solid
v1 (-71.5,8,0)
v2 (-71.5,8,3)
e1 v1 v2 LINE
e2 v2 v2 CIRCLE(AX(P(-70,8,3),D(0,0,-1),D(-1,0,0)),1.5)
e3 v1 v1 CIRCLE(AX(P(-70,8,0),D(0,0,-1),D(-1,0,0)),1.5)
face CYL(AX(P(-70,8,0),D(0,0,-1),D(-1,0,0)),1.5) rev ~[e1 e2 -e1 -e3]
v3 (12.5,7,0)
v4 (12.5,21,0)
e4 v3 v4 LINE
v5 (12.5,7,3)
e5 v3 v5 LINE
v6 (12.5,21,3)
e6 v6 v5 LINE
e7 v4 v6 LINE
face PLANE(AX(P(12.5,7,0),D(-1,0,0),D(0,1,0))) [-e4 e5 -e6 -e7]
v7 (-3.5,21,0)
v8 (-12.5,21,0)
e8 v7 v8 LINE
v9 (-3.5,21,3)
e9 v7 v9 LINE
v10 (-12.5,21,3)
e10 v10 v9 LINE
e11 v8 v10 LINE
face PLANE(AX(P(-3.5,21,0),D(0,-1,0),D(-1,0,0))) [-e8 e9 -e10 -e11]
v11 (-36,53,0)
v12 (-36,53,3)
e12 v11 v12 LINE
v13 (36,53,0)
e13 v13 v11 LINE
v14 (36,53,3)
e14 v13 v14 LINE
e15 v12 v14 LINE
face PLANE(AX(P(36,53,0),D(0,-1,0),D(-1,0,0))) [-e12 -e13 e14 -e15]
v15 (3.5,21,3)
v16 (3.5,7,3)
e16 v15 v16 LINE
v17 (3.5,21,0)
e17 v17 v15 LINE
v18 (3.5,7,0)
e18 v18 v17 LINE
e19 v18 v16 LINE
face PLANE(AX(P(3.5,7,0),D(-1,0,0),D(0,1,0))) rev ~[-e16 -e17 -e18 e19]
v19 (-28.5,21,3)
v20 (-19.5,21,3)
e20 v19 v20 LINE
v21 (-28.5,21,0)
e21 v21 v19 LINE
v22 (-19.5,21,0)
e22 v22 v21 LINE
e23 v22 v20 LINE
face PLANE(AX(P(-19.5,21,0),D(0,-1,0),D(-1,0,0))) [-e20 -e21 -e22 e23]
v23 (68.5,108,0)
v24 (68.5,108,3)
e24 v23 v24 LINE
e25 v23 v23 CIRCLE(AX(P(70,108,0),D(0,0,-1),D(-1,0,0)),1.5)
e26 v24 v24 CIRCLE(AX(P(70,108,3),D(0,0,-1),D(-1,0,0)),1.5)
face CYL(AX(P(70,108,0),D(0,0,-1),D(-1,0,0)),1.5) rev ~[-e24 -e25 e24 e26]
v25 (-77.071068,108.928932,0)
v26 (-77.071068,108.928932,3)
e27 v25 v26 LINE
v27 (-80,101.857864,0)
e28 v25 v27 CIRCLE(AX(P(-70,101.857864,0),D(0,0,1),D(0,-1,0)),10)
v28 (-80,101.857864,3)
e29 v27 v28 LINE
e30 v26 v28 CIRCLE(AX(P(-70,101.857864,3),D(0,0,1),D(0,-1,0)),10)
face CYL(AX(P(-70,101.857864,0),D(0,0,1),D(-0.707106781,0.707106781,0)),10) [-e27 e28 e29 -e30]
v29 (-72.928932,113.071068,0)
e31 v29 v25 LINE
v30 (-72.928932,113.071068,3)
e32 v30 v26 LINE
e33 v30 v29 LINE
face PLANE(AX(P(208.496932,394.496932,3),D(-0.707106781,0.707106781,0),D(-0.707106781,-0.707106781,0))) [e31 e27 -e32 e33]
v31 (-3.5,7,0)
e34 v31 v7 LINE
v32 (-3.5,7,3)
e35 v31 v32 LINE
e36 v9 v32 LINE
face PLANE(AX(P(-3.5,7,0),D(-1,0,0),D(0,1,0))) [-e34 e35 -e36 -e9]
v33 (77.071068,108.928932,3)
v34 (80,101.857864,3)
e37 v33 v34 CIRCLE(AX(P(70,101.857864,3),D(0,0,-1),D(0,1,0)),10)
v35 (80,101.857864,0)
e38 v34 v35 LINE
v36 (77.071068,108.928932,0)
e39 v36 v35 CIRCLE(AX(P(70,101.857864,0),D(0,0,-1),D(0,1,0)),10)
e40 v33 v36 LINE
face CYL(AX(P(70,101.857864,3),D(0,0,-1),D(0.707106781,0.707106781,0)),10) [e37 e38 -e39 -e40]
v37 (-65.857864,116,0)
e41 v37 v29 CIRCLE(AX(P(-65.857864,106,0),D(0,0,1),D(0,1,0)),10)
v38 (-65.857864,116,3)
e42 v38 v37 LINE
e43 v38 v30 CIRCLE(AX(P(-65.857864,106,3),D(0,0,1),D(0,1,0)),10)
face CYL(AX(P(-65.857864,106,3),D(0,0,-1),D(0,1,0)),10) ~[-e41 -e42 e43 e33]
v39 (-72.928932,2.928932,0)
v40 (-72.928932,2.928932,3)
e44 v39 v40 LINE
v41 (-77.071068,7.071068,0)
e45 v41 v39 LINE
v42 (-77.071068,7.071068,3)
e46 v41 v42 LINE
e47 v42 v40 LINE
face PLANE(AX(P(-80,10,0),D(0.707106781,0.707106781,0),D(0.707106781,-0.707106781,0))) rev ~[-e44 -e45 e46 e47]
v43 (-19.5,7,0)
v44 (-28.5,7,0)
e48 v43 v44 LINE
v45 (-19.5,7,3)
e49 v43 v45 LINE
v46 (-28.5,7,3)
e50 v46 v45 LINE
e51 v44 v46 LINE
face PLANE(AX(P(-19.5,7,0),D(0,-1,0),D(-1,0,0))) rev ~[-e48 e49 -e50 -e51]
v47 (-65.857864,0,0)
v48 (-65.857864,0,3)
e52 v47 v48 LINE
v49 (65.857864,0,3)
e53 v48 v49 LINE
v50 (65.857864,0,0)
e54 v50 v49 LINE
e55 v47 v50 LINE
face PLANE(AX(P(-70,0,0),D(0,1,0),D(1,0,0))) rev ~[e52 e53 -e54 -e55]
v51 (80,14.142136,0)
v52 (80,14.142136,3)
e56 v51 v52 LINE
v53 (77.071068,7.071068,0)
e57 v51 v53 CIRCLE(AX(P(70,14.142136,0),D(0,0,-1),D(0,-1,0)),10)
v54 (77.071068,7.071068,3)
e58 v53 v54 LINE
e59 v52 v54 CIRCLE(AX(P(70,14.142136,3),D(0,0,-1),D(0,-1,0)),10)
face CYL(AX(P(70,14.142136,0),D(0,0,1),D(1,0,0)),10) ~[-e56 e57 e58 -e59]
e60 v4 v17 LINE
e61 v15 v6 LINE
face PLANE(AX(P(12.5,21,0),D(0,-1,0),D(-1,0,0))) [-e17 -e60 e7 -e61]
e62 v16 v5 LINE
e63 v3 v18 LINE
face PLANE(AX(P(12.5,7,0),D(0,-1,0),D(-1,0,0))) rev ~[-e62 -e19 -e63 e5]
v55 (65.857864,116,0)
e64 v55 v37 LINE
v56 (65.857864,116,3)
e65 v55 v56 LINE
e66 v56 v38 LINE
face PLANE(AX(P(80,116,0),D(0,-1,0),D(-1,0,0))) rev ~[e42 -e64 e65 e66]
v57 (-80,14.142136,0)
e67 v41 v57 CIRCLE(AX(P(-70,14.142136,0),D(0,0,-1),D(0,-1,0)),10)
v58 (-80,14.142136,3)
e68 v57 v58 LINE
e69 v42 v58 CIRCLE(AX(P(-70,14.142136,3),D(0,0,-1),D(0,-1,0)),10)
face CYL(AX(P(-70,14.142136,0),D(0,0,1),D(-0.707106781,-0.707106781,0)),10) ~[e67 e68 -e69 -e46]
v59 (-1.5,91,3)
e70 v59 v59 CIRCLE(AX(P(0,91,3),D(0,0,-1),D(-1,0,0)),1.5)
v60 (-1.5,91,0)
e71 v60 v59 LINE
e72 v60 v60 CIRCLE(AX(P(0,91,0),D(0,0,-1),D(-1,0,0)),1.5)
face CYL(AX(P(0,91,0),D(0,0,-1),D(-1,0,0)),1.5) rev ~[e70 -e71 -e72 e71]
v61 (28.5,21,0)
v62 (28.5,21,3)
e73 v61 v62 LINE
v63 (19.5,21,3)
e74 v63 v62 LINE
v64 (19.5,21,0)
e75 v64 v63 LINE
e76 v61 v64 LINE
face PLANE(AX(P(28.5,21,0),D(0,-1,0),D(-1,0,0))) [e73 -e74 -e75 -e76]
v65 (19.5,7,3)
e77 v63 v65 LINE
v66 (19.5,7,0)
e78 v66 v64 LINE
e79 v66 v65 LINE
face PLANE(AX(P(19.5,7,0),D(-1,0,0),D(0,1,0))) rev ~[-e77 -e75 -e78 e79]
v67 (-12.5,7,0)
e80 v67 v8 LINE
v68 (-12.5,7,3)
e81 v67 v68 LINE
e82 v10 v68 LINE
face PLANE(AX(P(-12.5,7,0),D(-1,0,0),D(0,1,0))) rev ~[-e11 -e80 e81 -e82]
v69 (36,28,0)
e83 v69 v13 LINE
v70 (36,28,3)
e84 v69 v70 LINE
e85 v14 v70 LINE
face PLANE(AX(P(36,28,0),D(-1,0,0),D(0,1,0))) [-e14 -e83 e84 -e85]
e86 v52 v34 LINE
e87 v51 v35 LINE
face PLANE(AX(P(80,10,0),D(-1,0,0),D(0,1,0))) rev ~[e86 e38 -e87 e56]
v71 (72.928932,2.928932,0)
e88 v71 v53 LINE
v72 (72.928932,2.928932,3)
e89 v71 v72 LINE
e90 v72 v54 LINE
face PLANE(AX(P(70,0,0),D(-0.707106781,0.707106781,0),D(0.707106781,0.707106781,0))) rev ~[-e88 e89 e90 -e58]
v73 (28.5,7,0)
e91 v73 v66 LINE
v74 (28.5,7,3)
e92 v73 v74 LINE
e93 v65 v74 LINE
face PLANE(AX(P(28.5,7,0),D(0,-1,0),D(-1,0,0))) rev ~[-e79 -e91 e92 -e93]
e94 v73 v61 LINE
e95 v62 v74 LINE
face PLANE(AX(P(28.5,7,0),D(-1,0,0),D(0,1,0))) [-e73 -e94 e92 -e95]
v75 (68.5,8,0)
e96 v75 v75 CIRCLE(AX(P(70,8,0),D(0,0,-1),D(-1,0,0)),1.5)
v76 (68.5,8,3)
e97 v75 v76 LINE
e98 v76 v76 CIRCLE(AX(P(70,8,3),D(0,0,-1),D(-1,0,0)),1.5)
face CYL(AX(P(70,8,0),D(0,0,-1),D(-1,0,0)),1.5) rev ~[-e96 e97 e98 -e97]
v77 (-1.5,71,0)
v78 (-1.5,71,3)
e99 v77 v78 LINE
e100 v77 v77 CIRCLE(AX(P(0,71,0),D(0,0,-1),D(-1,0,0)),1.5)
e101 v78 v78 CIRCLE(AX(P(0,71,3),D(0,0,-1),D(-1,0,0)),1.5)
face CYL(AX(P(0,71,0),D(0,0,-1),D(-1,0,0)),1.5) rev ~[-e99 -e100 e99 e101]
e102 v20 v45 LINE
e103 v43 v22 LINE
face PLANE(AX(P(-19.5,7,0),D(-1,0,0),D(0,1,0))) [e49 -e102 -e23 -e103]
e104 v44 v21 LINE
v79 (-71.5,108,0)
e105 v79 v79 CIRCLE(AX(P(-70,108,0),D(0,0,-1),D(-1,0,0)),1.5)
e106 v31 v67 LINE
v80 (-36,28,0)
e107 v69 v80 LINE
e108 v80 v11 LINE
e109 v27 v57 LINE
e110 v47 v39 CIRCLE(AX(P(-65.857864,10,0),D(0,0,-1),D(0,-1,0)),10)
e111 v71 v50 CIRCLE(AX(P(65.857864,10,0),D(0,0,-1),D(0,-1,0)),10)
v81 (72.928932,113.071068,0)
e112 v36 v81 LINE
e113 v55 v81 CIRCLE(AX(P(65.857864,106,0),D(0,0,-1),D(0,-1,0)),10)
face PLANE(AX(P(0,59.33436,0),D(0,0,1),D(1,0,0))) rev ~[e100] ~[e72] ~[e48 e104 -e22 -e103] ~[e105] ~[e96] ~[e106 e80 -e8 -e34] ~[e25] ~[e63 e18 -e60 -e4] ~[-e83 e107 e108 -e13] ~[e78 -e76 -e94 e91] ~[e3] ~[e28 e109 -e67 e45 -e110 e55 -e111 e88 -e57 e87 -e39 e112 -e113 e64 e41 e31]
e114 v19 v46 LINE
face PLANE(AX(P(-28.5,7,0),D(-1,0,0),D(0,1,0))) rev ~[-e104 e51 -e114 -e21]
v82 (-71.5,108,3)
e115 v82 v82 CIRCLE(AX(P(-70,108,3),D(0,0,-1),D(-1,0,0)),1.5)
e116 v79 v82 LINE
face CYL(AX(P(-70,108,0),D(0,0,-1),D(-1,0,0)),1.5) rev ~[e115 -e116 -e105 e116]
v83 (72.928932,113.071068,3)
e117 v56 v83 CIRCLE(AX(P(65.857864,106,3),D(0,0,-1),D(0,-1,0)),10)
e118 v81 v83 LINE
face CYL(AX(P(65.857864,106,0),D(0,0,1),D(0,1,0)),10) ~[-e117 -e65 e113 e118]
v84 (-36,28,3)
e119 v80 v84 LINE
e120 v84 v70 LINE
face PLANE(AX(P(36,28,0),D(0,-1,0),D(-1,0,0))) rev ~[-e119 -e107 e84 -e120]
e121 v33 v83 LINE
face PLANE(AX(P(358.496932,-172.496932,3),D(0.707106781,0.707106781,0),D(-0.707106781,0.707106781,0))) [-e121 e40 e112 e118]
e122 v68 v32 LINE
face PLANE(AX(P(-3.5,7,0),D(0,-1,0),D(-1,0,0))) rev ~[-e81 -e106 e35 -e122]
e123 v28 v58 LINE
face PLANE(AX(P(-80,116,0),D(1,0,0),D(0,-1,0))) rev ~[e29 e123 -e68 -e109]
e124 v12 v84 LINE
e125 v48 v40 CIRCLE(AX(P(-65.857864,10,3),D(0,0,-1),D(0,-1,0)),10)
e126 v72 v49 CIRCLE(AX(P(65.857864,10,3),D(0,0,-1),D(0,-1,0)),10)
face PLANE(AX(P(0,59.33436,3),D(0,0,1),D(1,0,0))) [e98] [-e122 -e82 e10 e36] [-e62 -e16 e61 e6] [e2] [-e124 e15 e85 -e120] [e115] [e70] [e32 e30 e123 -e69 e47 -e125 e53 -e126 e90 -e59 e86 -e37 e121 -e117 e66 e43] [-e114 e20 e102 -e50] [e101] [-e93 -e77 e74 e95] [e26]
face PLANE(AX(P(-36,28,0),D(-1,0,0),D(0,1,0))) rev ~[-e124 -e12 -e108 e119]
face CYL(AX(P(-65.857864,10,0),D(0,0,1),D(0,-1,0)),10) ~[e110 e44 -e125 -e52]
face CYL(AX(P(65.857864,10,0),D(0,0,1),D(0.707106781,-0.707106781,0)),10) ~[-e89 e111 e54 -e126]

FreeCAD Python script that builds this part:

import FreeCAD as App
import Part
import Sketcher
Q = App.Units.Quantity


def edges_at(feature, points):
    """Names of the edges that pass closest to the given points."""
    edges = feature.Shape.Edges
    near = lambda p: min(range(len(edges)), key=lambda i: edges[i].distToShape(Part.Vertex(*p))[0])
    return sorted({f"Edge{near(p) + 1}" for p in points})


def add_polygon(sketch, points):
    """Adds a closed chain of lines whose ends are joined by coincident constraints."""
    first, n = sketch.GeometryCount, len(points)
    for a, b in zip(points, points[1:] + points[:1]):
        sketch.addGeometry(Part.LineSegment(App.Vector(*a, 0), App.Vector(*b, 0)), False)
    for i in range(n):
        sketch.addConstraint(Sketcher.Constraint("Coincident", first + i, 2, first + (i + 1) % n, 1))

doc = App.newDocument("Part")
params = doc.addObject("Spreadsheet::Sheet", "Params")
for row, (alias, value) in enumerate([
    ("sketch1_width", "160 mm"),
    ("sketch1_width2", "140 mm"),
    ("sketch1_height", "106 mm"),
    ("pad1_length", "3 mm"),
    ("sketch4_diameter", "3 mm"),
    ("sketch4_width", "72 mm"),
    ("sketch4_width2", "9 mm"),
    ("sketch4_height", "25 mm"),
    ("sketch4_height2", "14 mm"),
    ("fillet_radius", "10 mm"),
], start=1):
    params.set(f"A{row}", alias)
    params.set(f"B{row}", "=" + value)
    params.setAlias(f"B{row}", alias)

body = doc.addObject("PartDesign::Body", "Body")

sketch1 = body.newObject("Sketcher::SketchObject", "Sketch")
sketch1.AttachmentSupport = (doc.getObject("XY_Plane"), [""])
sketch1.MapMode = "FlatFace"
add_polygon(sketch1, [(80, 116), (-80, 116), (-80, 10), (-70, 0), (70, 0), (80, 10)])
sketch1.addConstraint([
    Sketcher.Constraint("Horizontal", 0),
    Sketcher.Constraint("Vertical", 1),
    Sketcher.Constraint("Horizontal", 3),
    Sketcher.Constraint("Vertical", 5),
    Sketcher.Constraint("Symmetric", 2, 2, 3, 2, -1, 1),
    Sketcher.Constraint("Symmetric", 1, 2, 4, 2, -2),
    Sketcher.Constraint("Perpendicular", 2, 4),
    Sketcher.Constraint("DistanceX", 0, 2, 0, 1, Q("160 mm")),
    Sketcher.Constraint("DistanceX", 3, 1, 3, 2, Q("140 mm")),
    Sketcher.Constraint("DistanceY", 1, 2, 1, 1, Q("106 mm")),
])
sketch1.setExpression("Constraints[13]", "Params.sketch1_width")
sketch1.setExpression("Constraints[14]", "Params.sketch1_width2")
sketch1.setExpression("Constraints[15]", "Params.sketch1_height")
pad1 = body.newObject("PartDesign::Pad", "Pad")
pad1.Profile = sketch1
pad1.setExpression("Length", "Params.pad1_length")

sketch2 = body.newObject("Sketcher::SketchObject", "Sketch001")
sketch2.AttachmentSupport = (doc.getObject("XY_Plane"), [""])
sketch2.MapMode = "FlatFace"
add_polygon(sketch2, [(358.496932, -172.496932), (-208.496932, 394.496932), (348.496932, 951.490797), (915.490797, 384.496932)])
sketch2.addConstraint([
    Sketcher.Constraint("Perpendicular", 0, 1),
    Sketcher.Constraint("Perpendicular", 1, 2),
    Sketcher.Constraint("Perpendicular", 2, 3),
    Sketcher.Constraint("Angle", 0, Q("135 deg")),
    Sketcher.Constraint("DistanceY", 2, 2, 0, 2, Q("10 mm")),
    Sketcher.Constraint("DistanceX", 0, 2, 2, 2, Q("1123.98773 mm")),
    Sketcher.Constraint("DistanceX", 0, 2, -1, 1, Q("208.496932 mm")),
    Sketcher.Constraint("DistanceY", -1, 1, 0, 2, Q("394.496932 mm")),
])
pocket1 = body.newObject("PartDesign::Pocket", "Pocket")
pocket1.Profile = sketch2
pocket1.Type = "ThroughAll"
pocket1.Midplane = True

sketch3 = body.newObject("Sketcher::SketchObject", "Sketch002")
sketch3.AttachmentSupport = (doc.getObject("XY_Plane"), [""])
sketch3.MapMode = "FlatFace"
add_polygon(sketch3, [(208.496932, 394.496932), (-358.496932, -172.496932), (-915.490797, 384.496932), (-348.496932, 951.490797)])
sketch3.addConstraint([
    Sketcher.Constraint("Perpendicular", 0, 1),
    Sketcher.Constraint("Perpendicular", 1, 2),
    Sketcher.Constraint("Perpendicular", 2, 3),
    Sketcher.Constraint("Angle", 0, Q("-135 deg")),
    Sketcher.Constraint("DistanceX", 0, 2, 2, 2, Q("10 mm")),
    Sketcher.Constraint("DistanceY", 0, 2, 2, 2, Q("1123.98773 mm")),
    Sketcher.Constraint("DistanceX", 0, 2, -1, 1, Q("358.496932 mm")),
    Sketcher.Constraint("DistanceY", 0, 2, -1, 1, Q("172.496932 mm")),
])
pocket2 = body.newObject("PartDesign::Pocket", "Pocket001")
pocket2.Profile = sketch3
pocket2.Type = "ThroughAll"
pocket2.Midplane = True

sketch4 = body.newObject("Sketcher::SketchObject", "Sketch003")
sketch4.AttachmentSupport = (doc.getObject("XY_Plane"), [""])
sketch4.MapMode = "FlatFace"
sketch4.addGeometry(Part.Circle(App.Vector(0, 91, 0), App.Vector(0, 0, 1), 1.5), False)
sketch4.addGeometry(Part.Circle(App.Vector(0, 71, 0), App.Vector(0, 0, 1), 1.5), False)
sketch4.addGeometry(Part.Circle(App.Vector(70, 8, 0), App.Vector(0, 0, 1), 1.5), False)
sketch4.addGeometry(Part.Circle(App.Vector(-70, 8, 0), App.Vector(0, 0, 1), 1.5), False)
sketch4.addGeometry(Part.Circle(App.Vector(-70, 108, 0), App.Vector(0, 0, 1), 1.5), False)
sketch4.addGeometry(Part.Circle(App.Vector(70, 108, 0), App.Vector(0, 0, 1), 1.5), False)
add_polygon(sketch4, [(36, 53), (36, 28), (-36, 28), (-36, 53)])
add_polygon(sketch4, [(28.5, 21), (28.5, 7), (19.5, 7), (19.5, 21)])
add_polygon(sketch4, [(12.5, 21), (12.5, 7), (3.5, 7), (3.5, 21)])
add_polygon(sketch4, [(-3.5, 21), (-3.5, 7), (-12.5, 7), (-12.5, 21)])
add_polygon(sketch4, [(-19.5, 21), (-19.5, 7), (-28.5, 7), (-28.5, 21)])
sketch4.addConstraint([
    Sketcher.Constraint("Vertical", 6),
    Sketcher.Constraint("Horizontal", 7),
    Sketcher.Constraint("Vertical", 8),
    Sketcher.Constraint("Horizontal", 9),
    Sketcher.Constraint("Vertical", 10),
    Sketcher.Constraint("Horizontal", 11),
    Sketcher.Constraint("Vertical", 12),
    Sketcher.Constraint("Horizontal", 13),
    Sketcher.Constraint("Vertical", 14),
    Sketcher.Constraint("Horizontal", 15),
    Sketcher.Constraint("Vertical", 16),
    Sketcher.Constraint("Horizontal", 17),
    Sketcher.Constraint("Vertical", 18),
    Sketcher.Constraint("Horizontal", 19),
    Sketcher.Constraint("Vertical", 20),
    Sketcher.Constraint("Horizontal", 21),
    Sketcher.Constraint("Vertical", 22),
    Sketcher.Constraint("Horizontal", 23),
    Sketcher.Constraint("Vertical", 24),
    Sketcher.Constraint("Horizontal", 25),
    Sketcher.Constraint("Equal", 0, 1),
    Sketcher.Constraint("Equal", 1, 2),
    Sketcher.Constraint("Equal", 2, 3),
    Sketcher.Constraint("Equal", 3, 4),
    Sketcher.Constraint("Equal", 4, 5),
    Sketcher.Constraint("Symmetric", 2, 3, 3, 3, -2),
    Sketcher.Constraint("Symmetric", 4, 3, 5, 3, -2),
    Sketcher.Constraint("Symmetric", 15, 2, 18, 2, -2),
    Sketcher.Constraint("Symmetric", 17, 2, 20, 2, -2),
    Sketcher.Constraint("Symmetric", 11, 2, 22, 2, -2),
    Sketcher.Constraint("Symmetric", 13, 2, 24, 2, -2),
    Sketcher.Constraint("PointOnObject", 0, 3, -2),
    Sketcher.Constraint("PointOnObject", 1, 3, -2),
    Sketcher.Constraint("Horizontal", 11, 2, 14, 2),
    Sketcher.Constraint("Horizontal", 13, 2, 16, 2),
    Sketcher.Constraint("Vertical", 3, 3, 4, 3),
    Sketcher.Constraint("Equal", 13, 15),
    Sketcher.Constraint("Diameter", 0, Q("3 mm")),
    Sketcher.Constraint("DistanceX", 7, 2, 7, 1, Q("72 mm")),
    Sketcher.Constraint("DistanceX", 11, 2, 11, 1, Q("9 mm")),
    Sketcher.Constraint("DistanceY", 6, 2, 6, 1, Q("25 mm")),
    Sketcher.Constraint("DistanceY", 10, 2, 10, 1, Q("14 mm")),
    Sketcher.Constraint("DistanceY", -1, 1, 0, 3, Q("91 mm")),
    Sketcher.Constraint("DistanceY", -1, 1, 1, 3, Q("71 mm")),
    Sketcher.Constraint("DistanceX", -1, 1, 2, 3, Q("70 mm")),
    Sketcher.Constraint("DistanceY", -1, 1, 2, 3, Q("8 mm")),
    Sketcher.Constraint("DistanceY", -1, 1, 4, 3, Q("108 mm")),
    Sketcher.Constraint("DistanceX", -1, 1, 6, 2, Q("36 mm")),
    Sketcher.Constraint("DistanceY", -1, 1, 6, 2, Q("28 mm")),
    Sketcher.Constraint("DistanceY", -1, 1, 10, 2, Q("7 mm")),
    Sketcher.Constraint("DistanceX", 14, 2, 11, 2, Q("7 mm")),
    Sketcher.Constraint("DistanceX", 18, 2, 15, 2, Q("7 mm")),
])
sketch4.setExpression("Constraints[57]", "Params.sketch4_diameter")
sketch4.setExpression("Constraints[58]", "Params.sketch4_width")
sketch4.setExpression("Constraints[59]", "Params.sketch4_width2")
sketch4.setExpression("Constraints[60]", "Params.sketch4_height")
sketch4.setExpression("Constraints[61]", "Params.sketch4_height2")
pocket3 = body.newObject("PartDesign::Pocket", "Pocket002")
pocket3.Profile = sketch4
pocket3.Type = "ThroughAll"
pocket3.Reversed = True
doc.recompute()

fillet = body.newObject("PartDesign::Fillet", "Fillet")
fillet.Base = (pocket3, edges_at(pocket3, [
    (-80, 10, 1.5),
    (80, 10, 1.5),
    (70, 0, 1.5),
    (-70, 0, 1.5),
    (80, 106, 1.5),
    (70, 116, 1.5),
    (-70, 116, 1.5),
    (-80, 106, 1.5),
]))
fillet.setExpression("Radius", "Params.fillet_radius")

doc.recompute()
